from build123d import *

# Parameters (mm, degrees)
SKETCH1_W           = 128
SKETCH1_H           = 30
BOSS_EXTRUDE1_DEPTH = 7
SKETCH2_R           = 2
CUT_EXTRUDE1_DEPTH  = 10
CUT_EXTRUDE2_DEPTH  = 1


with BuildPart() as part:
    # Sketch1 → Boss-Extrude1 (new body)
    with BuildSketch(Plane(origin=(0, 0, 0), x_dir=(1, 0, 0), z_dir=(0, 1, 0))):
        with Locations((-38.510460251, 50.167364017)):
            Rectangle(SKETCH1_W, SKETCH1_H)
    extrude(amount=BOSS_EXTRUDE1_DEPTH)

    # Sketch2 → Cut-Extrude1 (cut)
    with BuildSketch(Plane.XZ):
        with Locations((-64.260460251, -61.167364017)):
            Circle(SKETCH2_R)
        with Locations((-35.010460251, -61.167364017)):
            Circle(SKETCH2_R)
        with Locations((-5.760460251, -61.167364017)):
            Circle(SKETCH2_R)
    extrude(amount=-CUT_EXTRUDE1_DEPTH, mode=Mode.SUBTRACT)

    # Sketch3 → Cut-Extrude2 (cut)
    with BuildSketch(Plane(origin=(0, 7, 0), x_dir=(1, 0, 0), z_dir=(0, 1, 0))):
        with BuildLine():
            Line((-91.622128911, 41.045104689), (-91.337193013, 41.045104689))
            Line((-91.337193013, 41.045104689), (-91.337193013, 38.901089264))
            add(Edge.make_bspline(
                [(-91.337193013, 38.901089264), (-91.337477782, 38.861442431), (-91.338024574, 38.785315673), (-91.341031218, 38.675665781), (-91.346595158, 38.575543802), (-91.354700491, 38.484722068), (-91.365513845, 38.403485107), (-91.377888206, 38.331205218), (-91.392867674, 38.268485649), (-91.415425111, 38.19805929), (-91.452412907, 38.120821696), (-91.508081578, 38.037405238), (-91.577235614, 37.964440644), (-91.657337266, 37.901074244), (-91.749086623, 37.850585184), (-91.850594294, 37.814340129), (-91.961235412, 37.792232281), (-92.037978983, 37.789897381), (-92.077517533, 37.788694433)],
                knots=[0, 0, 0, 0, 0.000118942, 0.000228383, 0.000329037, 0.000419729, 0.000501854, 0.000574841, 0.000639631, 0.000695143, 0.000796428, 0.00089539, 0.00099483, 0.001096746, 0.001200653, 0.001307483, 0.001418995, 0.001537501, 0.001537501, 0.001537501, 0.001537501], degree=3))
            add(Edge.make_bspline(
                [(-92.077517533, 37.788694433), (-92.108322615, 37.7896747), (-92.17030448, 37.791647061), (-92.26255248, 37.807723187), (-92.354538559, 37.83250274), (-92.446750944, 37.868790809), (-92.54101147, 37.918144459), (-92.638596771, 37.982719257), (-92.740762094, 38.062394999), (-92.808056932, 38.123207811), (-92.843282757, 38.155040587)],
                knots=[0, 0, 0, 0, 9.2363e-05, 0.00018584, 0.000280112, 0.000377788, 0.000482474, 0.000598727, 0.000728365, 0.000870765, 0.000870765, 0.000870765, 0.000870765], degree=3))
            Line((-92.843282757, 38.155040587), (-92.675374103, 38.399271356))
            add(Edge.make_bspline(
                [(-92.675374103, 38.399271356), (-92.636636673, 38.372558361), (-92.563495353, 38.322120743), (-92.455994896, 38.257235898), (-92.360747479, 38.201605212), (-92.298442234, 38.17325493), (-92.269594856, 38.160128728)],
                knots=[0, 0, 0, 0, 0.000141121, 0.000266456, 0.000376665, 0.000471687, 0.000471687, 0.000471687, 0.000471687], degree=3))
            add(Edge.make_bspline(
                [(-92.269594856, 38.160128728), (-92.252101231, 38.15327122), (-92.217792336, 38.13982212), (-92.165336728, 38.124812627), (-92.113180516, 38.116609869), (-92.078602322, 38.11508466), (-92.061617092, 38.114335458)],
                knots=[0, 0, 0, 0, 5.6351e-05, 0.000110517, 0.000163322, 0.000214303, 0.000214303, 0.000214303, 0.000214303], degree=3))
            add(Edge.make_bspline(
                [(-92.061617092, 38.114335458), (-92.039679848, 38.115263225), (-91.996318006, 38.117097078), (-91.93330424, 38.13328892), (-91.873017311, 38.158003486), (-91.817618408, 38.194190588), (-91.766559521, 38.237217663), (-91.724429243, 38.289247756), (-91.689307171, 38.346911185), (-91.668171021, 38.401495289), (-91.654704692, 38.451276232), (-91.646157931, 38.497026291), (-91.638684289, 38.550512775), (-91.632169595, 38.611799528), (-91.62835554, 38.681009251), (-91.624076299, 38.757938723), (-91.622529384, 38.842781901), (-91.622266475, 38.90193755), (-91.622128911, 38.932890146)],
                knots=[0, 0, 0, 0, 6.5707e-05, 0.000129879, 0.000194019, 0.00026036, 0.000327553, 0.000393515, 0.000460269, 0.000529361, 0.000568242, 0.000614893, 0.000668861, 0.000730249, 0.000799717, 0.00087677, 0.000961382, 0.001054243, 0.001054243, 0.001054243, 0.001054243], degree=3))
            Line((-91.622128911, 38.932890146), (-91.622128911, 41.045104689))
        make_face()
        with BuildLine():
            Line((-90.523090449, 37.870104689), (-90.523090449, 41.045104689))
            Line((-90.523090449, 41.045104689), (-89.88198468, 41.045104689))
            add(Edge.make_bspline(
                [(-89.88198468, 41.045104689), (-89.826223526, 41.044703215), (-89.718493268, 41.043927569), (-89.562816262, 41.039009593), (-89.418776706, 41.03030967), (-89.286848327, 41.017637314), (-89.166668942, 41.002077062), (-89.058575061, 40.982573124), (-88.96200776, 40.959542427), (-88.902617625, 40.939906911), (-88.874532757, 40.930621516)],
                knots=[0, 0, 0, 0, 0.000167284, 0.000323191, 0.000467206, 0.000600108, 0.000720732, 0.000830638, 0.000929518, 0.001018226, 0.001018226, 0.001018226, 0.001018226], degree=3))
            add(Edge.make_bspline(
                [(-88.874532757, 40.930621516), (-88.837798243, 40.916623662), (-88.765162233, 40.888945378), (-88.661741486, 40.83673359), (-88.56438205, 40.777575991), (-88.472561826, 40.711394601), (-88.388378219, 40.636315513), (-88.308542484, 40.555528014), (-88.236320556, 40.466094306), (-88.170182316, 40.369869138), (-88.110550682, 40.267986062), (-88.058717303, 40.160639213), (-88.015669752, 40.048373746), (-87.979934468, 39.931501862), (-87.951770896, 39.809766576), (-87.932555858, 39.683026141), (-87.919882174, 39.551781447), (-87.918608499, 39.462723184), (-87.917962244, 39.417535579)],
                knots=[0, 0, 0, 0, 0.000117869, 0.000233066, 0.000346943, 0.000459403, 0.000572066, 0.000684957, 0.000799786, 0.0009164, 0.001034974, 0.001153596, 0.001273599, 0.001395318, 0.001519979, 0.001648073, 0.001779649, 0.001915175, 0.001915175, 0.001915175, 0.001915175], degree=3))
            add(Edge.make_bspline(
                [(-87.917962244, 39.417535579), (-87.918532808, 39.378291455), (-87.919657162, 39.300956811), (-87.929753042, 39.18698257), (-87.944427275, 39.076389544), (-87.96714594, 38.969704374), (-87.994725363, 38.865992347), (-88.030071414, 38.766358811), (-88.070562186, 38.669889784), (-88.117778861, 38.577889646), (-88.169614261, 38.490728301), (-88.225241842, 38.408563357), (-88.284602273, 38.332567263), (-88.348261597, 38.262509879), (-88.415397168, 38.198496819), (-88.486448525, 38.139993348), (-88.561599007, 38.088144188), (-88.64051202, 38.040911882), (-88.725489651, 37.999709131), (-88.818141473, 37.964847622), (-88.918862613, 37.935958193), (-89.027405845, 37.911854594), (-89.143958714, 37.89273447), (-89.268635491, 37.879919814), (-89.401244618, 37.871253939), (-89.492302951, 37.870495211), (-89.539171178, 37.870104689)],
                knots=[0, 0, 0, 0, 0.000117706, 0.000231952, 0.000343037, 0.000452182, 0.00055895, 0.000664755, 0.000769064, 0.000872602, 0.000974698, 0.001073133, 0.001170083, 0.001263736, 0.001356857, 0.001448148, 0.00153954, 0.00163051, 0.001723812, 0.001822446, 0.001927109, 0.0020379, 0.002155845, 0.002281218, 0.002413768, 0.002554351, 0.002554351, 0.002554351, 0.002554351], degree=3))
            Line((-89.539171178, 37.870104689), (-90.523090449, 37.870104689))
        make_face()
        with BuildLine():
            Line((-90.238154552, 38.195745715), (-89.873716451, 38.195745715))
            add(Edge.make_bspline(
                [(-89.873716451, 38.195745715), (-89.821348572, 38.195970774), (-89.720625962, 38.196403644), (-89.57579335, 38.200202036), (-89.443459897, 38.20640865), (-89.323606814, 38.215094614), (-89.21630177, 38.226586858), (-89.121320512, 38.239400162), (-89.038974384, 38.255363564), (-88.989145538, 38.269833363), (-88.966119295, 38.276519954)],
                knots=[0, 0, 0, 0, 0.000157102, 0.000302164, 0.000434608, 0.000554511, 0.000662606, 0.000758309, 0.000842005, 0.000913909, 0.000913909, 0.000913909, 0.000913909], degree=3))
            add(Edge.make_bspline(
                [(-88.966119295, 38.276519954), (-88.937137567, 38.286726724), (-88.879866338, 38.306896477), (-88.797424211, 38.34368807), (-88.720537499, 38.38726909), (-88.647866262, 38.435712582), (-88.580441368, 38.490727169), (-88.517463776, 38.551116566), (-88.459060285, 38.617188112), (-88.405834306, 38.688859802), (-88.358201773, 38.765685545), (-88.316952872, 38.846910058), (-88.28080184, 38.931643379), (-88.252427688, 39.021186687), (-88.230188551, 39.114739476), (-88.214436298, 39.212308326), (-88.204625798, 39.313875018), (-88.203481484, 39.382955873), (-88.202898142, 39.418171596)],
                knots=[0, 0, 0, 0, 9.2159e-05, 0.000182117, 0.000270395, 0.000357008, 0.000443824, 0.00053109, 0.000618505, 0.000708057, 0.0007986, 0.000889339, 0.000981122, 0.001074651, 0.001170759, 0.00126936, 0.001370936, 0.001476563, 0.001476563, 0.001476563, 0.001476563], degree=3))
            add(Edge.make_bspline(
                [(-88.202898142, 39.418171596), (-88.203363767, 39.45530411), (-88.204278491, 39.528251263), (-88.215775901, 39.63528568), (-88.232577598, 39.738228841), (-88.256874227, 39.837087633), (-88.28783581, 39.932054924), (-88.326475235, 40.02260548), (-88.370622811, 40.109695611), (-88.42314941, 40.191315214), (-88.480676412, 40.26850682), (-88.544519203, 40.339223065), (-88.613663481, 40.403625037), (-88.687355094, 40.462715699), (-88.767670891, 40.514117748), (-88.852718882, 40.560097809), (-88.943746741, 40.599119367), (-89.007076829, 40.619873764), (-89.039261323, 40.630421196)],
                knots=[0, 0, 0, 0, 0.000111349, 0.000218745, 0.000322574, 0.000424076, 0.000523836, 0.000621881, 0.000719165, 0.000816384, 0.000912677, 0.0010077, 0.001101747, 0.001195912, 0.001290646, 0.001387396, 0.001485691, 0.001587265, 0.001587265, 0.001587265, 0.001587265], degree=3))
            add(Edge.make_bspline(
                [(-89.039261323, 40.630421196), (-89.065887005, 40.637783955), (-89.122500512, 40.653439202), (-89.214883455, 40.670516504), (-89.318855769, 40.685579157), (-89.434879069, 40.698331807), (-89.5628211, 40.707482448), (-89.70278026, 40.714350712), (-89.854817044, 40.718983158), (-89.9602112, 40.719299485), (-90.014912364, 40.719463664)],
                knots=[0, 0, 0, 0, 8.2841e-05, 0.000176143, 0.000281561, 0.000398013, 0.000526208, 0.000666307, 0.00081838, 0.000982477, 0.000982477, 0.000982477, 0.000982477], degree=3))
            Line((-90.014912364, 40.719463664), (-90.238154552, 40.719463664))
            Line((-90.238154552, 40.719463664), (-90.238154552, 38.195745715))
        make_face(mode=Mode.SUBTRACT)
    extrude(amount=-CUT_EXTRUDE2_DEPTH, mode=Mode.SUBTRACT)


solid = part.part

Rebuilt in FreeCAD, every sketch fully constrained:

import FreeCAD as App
import Part
import Sketcher

V = App.Vector

doc = App.newDocument("Part")
params = doc.addObject("Spreadsheet::Sheet", "Params")
for row, (alias, value) in enumerate([
    ("sketch1_width", "128 mm"),
    ("sketch1_height", "30 mm"),
    ("pad1_length", "7 mm"),
    ("sketch2_diameter", "4 mm"),
    ("pocket1_length", "10 mm"),
    ("pocket2_length", "1 mm"),
], start=1):
    params.set(f"A{row}", alias)
    params.set(f"B{row}", "=" + value)
    params.setAlias(f"B{row}", alias)

body = doc.addObject("PartDesign::Body", "Body")

# Sketch on XZ plane
sketch1 = body.newObject("Sketcher::SketchObject", "Sketch")
sketch1.AttachmentSupport = (doc.getObject("XZ_Plane"), [""])
sketch1.MapMode = "FlatFace"
sketch1.addGeometry([
    Part.LineSegment(V(-103, -65, 0), V(-103, -35, 0)),
    Part.LineSegment(V(-103, -35, 0), V(25, -35, 0)),
    Part.LineSegment(V(25, -35, 0), V(25, -65, 0)),
    Part.LineSegment(V(25, -65, 0), V(-103, -65, 0)),
], False)
sketch1.addConstraint([
    Sketcher.Constraint("Coincident", 0, 2, 1, 1),
    Sketcher.Constraint("Coincident", 1, 2, 2, 1),
    Sketcher.Constraint("Coincident", 2, 2, 3, 1),
    Sketcher.Constraint("Coincident", 3, 2, 0, 1),
    Sketcher.Constraint("Vertical", 0),
    Sketcher.Constraint("Horizontal", 1),
    Sketcher.Constraint("Vertical", 2),
    Sketcher.Constraint("Horizontal", 3),
    Sketcher.Constraint("DistanceX", 1, 1, 1, 2, 128.0),
    Sketcher.Constraint("DistanceY", 0, 1, 0, 2, 30.0),
    Sketcher.Constraint("DistanceX", 0, 2, -1, 1, 102.51046),
    Sketcher.Constraint("DistanceY", 0, 2, -1, 1, 35.167364),
])
sketch1.setExpression("Constraints[8]", "Params.sketch1_width")
sketch1.setExpression("Constraints[9]", "Params.sketch1_height")
pad1 = body.newObject("PartDesign::Pad", "Pad")
pad1.Profile = sketch1
pad1.setExpression("Length", "Params.pad1_length")
pad1.Reversed = True

# Sketch on XZ plane
sketch2 = body.newObject("Sketcher::SketchObject", "Sketch001")
sketch2.AttachmentSupport = (doc.getObject("XZ_Plane"), [""])
sketch2.MapMode = "FlatFace"
sketch2.addGeometry([
    Part.Circle(V(-64.3, -61.2, 0), V(0, 0, 1), 2),
    Part.Circle(V(-35, -61.2, 0), V(0, 0, 1), 2),
    Part.Circle(V(-5.8, -61.2, 0), V(0, 0, 1), 2),
], False)
sketch2.addConstraint([
    Sketcher.Constraint("Equal", 0, 1),
    Sketcher.Constraint("Equal", 1, 2),
    Sketcher.Constraint("Horizontal", 0, 3, 1, 3),
    Sketcher.Constraint("Horizontal", 1, 3, 2, 3),
    Sketcher.Constraint("Diameter", 0, 4.0),
    Sketcher.Constraint("DistanceX", 0, 3, 2, 3, 58.5),
    Sketcher.Constraint("DistanceX", 0, 3, 1, 3, 29.25),
    Sketcher.Constraint("DistanceX", 0, 3, -1, 1, 64.26046),
    Sketcher.Constraint("DistanceY", 0, 3, -1, 1, 61.167364),
])
sketch2.setExpression("Constraints[4]", "Params.sketch2_diameter")
pocket1 = body.newObject("PartDesign::Pocket", "Pocket")
pocket1.Profile = sketch2
pocket1.setExpression("Length", "Params.pocket1_length")

# Sketch on XZ plane
sketch3 = body.newObject("Sketcher::SketchObject", "Sketch002")
sketch3.AttachmentSupport = (doc.getObject("XZ_Plane"), [""])
sketch3.MapMode = "FlatFace"
sketch3.AttachmentOffset = App.Placement(V(0, 0, -7), App.Rotation())
sketch3.addGeometry([
    Part.LineSegment(V(-91.337193, -41.045105, 0), V(-91.622129, -41.045105, 0)),  # 0
    Part.LineSegment(V(-91.622129, -41.045105, 0), V(-91.622129, -38.93289, 0)),  # 1
    Part.BSplineCurve([V(-92.061617, -38.114335, 0), V(-92.03968, -38.115263, 0), V(-91.996318, -38.117097, 0), V(-91.933304, -38.133289, 0), V(-91.873017, -38.158003, 0), V(-91.817618, -38.194191, 0), V(-91.76656, -38.237218, 0), V(-91.724429, -38.289248, 0), V(-91.689307, -38.346911, 0), V(-91.668171, -38.401495, 0), V(-91.654705, -38.451276, 0), V(-91.646158, -38.497026, 0), V(-91.638684, -38.550513, 0), V(-91.63217, -38.6118, 0), V(-91.628356, -38.681009, 0), V(-91.624076, -38.757939, 0), V(-91.622529, -38.842782, 0), V(-91.622266, -38.901938, 0), V(-91.622129, -38.93289, 0)], [4, 1, 1, 1, 1, 1, 1, 1, 1, 1, 1, 1, 1, 1, 1, 1, 4], [0, 0.000065707, 0.000129879, 0.000194019, 0.00026036, 0.000327553, 0.000393515, 0.000460269, 0.000529361, 0.000568242, 0.000614893, 0.000668861, 0.000730249, 0.000799717, 0.00087677, 0.000961382, 0.001054243], False, 3, [1, 1, 1, 1, 1, 1, 1, 1, 1, 1, 1, 1, 1, 1, 1, 1, 1, 1, 1], False),  # 2
    Part.BSplineCurve([V(-92.269595, -38.160129, 0), V(-92.252101, -38.153271, 0), V(-92.217792, -38.139822, 0), V(-92.165337, -38.124813, 0), V(-92.113181, -38.11661, 0), V(-92.078602, -38.115085, 0), V(-92.061617, -38.114335, 0)], [4, 1, 1, 1, 4], [0, 0.000056351, 0.000110517, 0.000163322, 0.000214303], False, 3, [1, 1, 1, 1, 1, 1, 1], False),  # 3
    Part.BSplineCurve([V(-92.675374, -38.399271, 0), V(-92.636637, -38.372558, 0), V(-92.563495, -38.322121, 0), V(-92.455995, -38.257236, 0), V(-92.360747, -38.201605, 0), V(-92.298442, -38.173255, 0), V(-92.269595, -38.160129, 0)], [4, 1, 1, 1, 4], [0, 0.000141121, 0.000266456, 0.000376665, 0.000471687], False, 3, [1, 1, 1, 1, 1, 1, 1], False),  # 4
    Part.LineSegment(V(-92.675374, -38.399271, 0), V(-92.843283, -38.155041, 0)),  # 5
    Part.BSplineCurve([V(-92.077518, -37.788694, 0), V(-92.108323, -37.789675, 0), V(-92.170304, -37.791647, 0), V(-92.262552, -37.807723, 0), V(-92.354539, -37.832503, 0), V(-92.446751, -37.868791, 0), V(-92.541011, -37.918144, 0), V(-92.638597, -37.982719, 0), V(-92.740762, -38.062395, 0), V(-92.808057, -38.123208, 0), V(-92.843283, -38.155041, 0)], [4, 1, 1, 1, 1, 1, 1, 1, 4], [0, 0.000092363, 0.00018584, 0.000280112, 0.000377788, 0.000482474, 0.000598727, 0.000728365, 0.000870765], False, 3, [1, 1, 1, 1, 1, 1, 1, 1, 1, 1, 1], False),  # 6
    Part.BSplineCurve([V(-91.337193, -38.901089, 0), V(-91.337478, -38.861442, 0), V(-91.338025, -38.785316, 0), V(-91.341031, -38.675666, 0), V(-91.346595, -38.575544, 0), V(-91.3547, -38.484722, 0), V(-91.365514, -38.403485, 0), V(-91.377888, -38.331205, 0), V(-91.392868, -38.268486, 0), V(-91.415425, -38.198059, 0), V(-91.452413, -38.120822, 0), V(-91.508082, -38.037405, 0), V(-91.577236, -37.964441, 0), V(-91.657337, -37.901074, 0), V(-91.749087, -37.850585, 0), V(-91.850594, -37.81434, 0), V(-91.961235, -37.792232, 0), V(-92.037979, -37.789897, 0), V(-92.077518, -37.788694, 0)], [4, 1, 1, 1, 1, 1, 1, 1, 1, 1, 1, 1, 1, 1, 1, 1, 4], [0, 0.000118942, 0.000228383, 0.000329037, 0.000419729, 0.000501854, 0.000574841, 0.000639631, 0.000695143, 0.000796428, 0.00089539, 0.00099483, 0.001096746, 0.001200653, 0.001307483, 0.001418995, 0.001537501], False, 3, [1, 1, 1, 1, 1, 1, 1, 1, 1, 1, 1, 1, 1, 1, 1, 1, 1, 1, 1], False),  # 7
    Part.LineSegment(V(-91.337193, -38.901089, 0), V(-91.337193, -41.045105, 0)),  # 8
    Part.LineSegment(V(-90.52309, -41.045105, 0), V(-90.52309, -37.870105, 0)),  # 9
    Part.LineSegment(V(-90.52309, -37.870105, 0), V(-89.539171, -37.870105, 0)),  # 10
    Part.BSplineCurve([V(-87.917962, -39.417536, 0), V(-87.918533, -39.378291, 0), V(-87.919657, -39.300957, 0), V(-87.929753, -39.186983, 0), V(-87.944427, -39.07639, 0), V(-87.967146, -38.969704, 0), V(-87.994725, -38.865992, 0), V(-88.030071, -38.766359, 0), V(-88.070562, -38.66989, 0), V(-88.117779, -38.57789, 0), V(-88.169614, -38.490728, 0), V(-88.225242, -38.408563, 0), V(-88.284602, -38.332567, 0), V(-88.348262, -38.26251, 0), V(-88.415397, -38.198497, 0), V(-88.486449, -38.139993, 0), V(-88.561599, -38.088144, 0), V(-88.640512, -38.040912, 0), V(-88.72549, -37.999709, 0), V(-88.818141, -37.964848, 0), V(-88.918863, -37.935958, 0), V(-89.027406, -37.911855, 0), V(-89.143959, -37.892734, 0), V(-89.268635, -37.87992, 0), V(-89.401245, -37.871254, 0), V(-89.492303, -37.870495, 0), V(-89.539171, -37.870105, 0)], [4, 1, 1, 1, 1, 1, 1, 1, 1, 1, 1, 1, 1, 1, 1, 1, 1, 1, 1, 1, 1, 1, 1, 1, 4], [0, 0.000117706, 0.000231952, 0.000343037, 0.000452182, 0.00055895, 0.000664755, 0.000769064, 0.000872602, 0.000974698, 0.001073133, 0.001170083, 0.001263736, 0.001356857, 0.001448148, 0.00153954, 0.00163051, 0.001723812, 0.001822446, 0.001927109, 0.0020379, 0.002155845, 0.002281218, 0.002413768, 0.002554351], False, 3, [1, 1, 1, 1, 1, 1, 1, 1, 1, 1, 1, 1, 1, 1, 1, 1, 1, 1, 1, 1, 1, 1, 1, 1, 1, 1, 1], False),  # 11
    Part.BSplineCurve([V(-88.874533, -40.930622, 0), V(-88.837798, -40.916624, 0), V(-88.765162, -40.888945, 0), V(-88.661741, -40.836734, 0), V(-88.564382, -40.777576, 0), V(-88.472562, -40.711395, 0), V(-88.388378, -40.636316, 0), V(-88.308542, -40.555528, 0), V(-88.236321, -40.466094, 0), V(-88.170182, -40.369869, 0), V(-88.110551, -40.267986, 0), V(-88.058717, -40.160639, 0), V(-88.01567, -40.048374, 0), V(-87.979934, -39.931502, 0), V(-87.951771, -39.809767, 0), V(-87.932556, -39.683026, 0), V(-87.919882, -39.551781, 0), V(-87.918608, -39.462723, 0), V(-87.917962, -39.417536, 0)], [4, 1, 1, 1, 1, 1, 1, 1, 1, 1, 1, 1, 1, 1, 1, 1, 4], [0, 0.000117869, 0.000233066, 0.000346943, 0.000459403, 0.000572066, 0.000684957, 0.000799786, 0.0009164, 0.001034974, 0.001153596, 0.001273599, 0.001395318, 0.001519979, 0.001648073, 0.001779649, 0.001915175], False, 3, [1, 1, 1, 1, 1, 1, 1, 1, 1, 1, 1, 1, 1, 1, 1, 1, 1, 1, 1], False),  # 12
    Part.BSplineCurve([V(-89.881985, -41.045105, 0), V(-89.826224, -41.044703, 0), V(-89.718493, -41.043928, 0), V(-89.562816, -41.03901, 0), V(-89.418777, -41.03031, 0), V(-89.286848, -41.017637, 0), V(-89.166669, -41.002077, 0), V(-89.058575, -40.982573, 0), V(-88.962008, -40.959542, 0), V(-88.902618, -40.939907, 0), V(-88.874533, -40.930622, 0)], [4, 1, 1, 1, 1, 1, 1, 1, 4], [0, 0.000167284, 0.000323191, 0.000467206, 0.000600108, 0.000720732, 0.000830638, 0.000929518, 0.001018226], False, 3, [1, 1, 1, 1, 1, 1, 1, 1, 1, 1, 1], False),  # 13
    Part.LineSegment(V(-89.881985, -41.045105, 0), V(-90.52309, -41.045105, 0)),  # 14
    Part.LineSegment(V(-90.238155, -38.195746, 0), V(-90.238155, -40.719464, 0)),  # 15
    Part.LineSegment(V(-90.238155, -40.719464, 0), V(-90.014912, -40.719464, 0)),  # 16
    Part.BSplineCurve([V(-89.039261, -40.630421, 0), V(-89.065887, -40.637784, 0), V(-89.122501, -40.653439, 0), V(-89.214883, -40.670517, 0), V(-89.318856, -40.685579, 0), V(-89.434879, -40.698332, 0), V(-89.562821, -40.707482, 0), V(-89.70278, -40.714351, 0), V(-89.854817, -40.718983, 0), V(-89.960211, -40.719299, 0), V(-90.014912, -40.719464, 0)], [4, 1, 1, 1, 1, 1, 1, 1, 4], [0, 0.000082841, 0.000176143, 0.000281561, 0.000398013, 0.000526208, 0.000666307, 0.00081838, 0.000982477], False, 3, [1, 1, 1, 1, 1, 1, 1, 1, 1, 1, 1], False),  # 17
    Part.BSplineCurve([V(-88.202898, -39.418172, 0), V(-88.203364, -39.455304, 0), V(-88.204278, -39.528251, 0), V(-88.215776, -39.635286, 0), V(-88.232578, -39.738229, 0), V(-88.256874, -39.837088, 0), V(-88.287836, -39.932055, 0), V(-88.326475, -40.022605, 0), V(-88.370623, -40.109696, 0), V(-88.423149, -40.191315, 0), V(-88.480676, -40.268507, 0), V(-88.544519, -40.339223, 0), V(-88.613663, -40.403625, 0), V(-88.687355, -40.462716, 0), V(-88.767671, -40.514118, 0), V(-88.852719, -40.560098, 0), V(-88.943747, -40.599119, 0), V(-89.007077, -40.619874, 0), V(-89.039261, -40.630421, 0)], [4, 1, 1, 1, 1, 1, 1, 1, 1, 1, 1, 1, 1, 1, 1, 1, 4], [0, 0.000111349, 0.000218745, 0.000322574, 0.000424076, 0.000523836, 0.000621881, 0.000719165, 0.000816384, 0.000912677, 0.0010077, 0.001101747, 0.001195912, 0.001290646, 0.001387396, 0.001485691, 0.001587265], False, 3, [1, 1, 1, 1, 1, 1, 1, 1, 1, 1, 1, 1, 1, 1, 1, 1, 1, 1, 1], False),  # 18
    Part.BSplineCurve([V(-88.966119, -38.27652, 0), V(-88.937138, -38.286727, 0), V(-88.879866, -38.306896, 0), V(-88.797424, -38.343688, 0), V(-88.720537, -38.387269, 0), V(-88.647866, -38.435713, 0), V(-88.580441, -38.490727, 0), V(-88.517464, -38.551117, 0), V(-88.45906, -38.617188, 0), V(-88.405834, -38.68886, 0), V(-88.358202, -38.765686, 0), V(-88.316953, -38.84691, 0), V(-88.280802, -38.931643, 0), V(-88.252428, -39.021187, 0), V(-88.230189, -39.114739, 0), V(-88.214436, -39.212308, 0), V(-88.204626, -39.313875, 0), V(-88.203481, -39.382956, 0), V(-88.202898, -39.418172, 0)], [4, 1, 1, 1, 1, 1, 1, 1, 1, 1, 1, 1, 1, 1, 1, 1, 4], [0, 0.000092159, 0.000182117, 0.000270395, 0.000357008, 0.000443824, 0.00053109, 0.000618505, 0.000708057, 0.0007986, 0.000889339, 0.000981122, 0.001074651, 0.001170759, 0.00126936, 0.001370936, 0.001476563], False, 3, [1, 1, 1, 1, 1, 1, 1, 1, 1, 1, 1, 1, 1, 1, 1, 1, 1, 1, 1], False),  # 19
    Part.BSplineCurve([V(-89.873716, -38.195746, 0), V(-89.821349, -38.195971, 0), V(-89.720626, -38.196404, 0), V(-89.575793, -38.200202, 0), V(-89.44346, -38.206409, 0), V(-89.323607, -38.215095, 0), V(-89.216302, -38.226587, 0), V(-89.121321, -38.2394, 0), V(-89.038974, -38.255364, 0), V(-88.989146, -38.269833, 0), V(-88.966119, -38.27652, 0)], [4, 1, 1, 1, 1, 1, 1, 1, 4], [0, 0.000157102, 0.000302164, 0.000434608, 0.000554511, 0.000662606, 0.000758309, 0.000842005, 0.000913909], False, 3, [1, 1, 1, 1, 1, 1, 1, 1, 1, 1, 1], False),  # 20
    Part.LineSegment(V(-89.873716, -38.195746, 0), V(-90.238155, -38.195746, 0)),  # 21
], False)
sketch3.addConstraint([
    Sketcher.Constraint("Block", 2),
    Sketcher.Constraint("Block", 3),
    Sketcher.Constraint("Block", 4),
    Sketcher.Constraint("Block", 6),
    Sketcher.Constraint("Block", 7),
    Sketcher.Constraint("Block", 11),
    Sketcher.Constraint("Block", 12),
    Sketcher.Constraint("Block", 13),
    Sketcher.Constraint("Block", 17),
    Sketcher.Constraint("Block", 18),
    Sketcher.Constraint("Block", 19),
    Sketcher.Constraint("Block", 20),
    Sketcher.Constraint("Coincident", 0, 2, 1, 1),
    Sketcher.Constraint("Coincident", 1, 2, 2, 2),
    Sketcher.Constraint("Coincident", 4, 1, 5, 1),
    Sketcher.Constraint("Coincident", 5, 2, 6, 2),
    Sketcher.Constraint("Coincident", 7, 1, 8, 1),
    Sketcher.Constraint("Coincident", 8, 2, 0, 1),
    Sketcher.Constraint("Coincident", 9, 2, 10, 1),
    Sketcher.Constraint("Coincident", 10, 2, 11, 2),
    Sketcher.Constraint("Coincident", 13, 1, 14, 1),
    Sketcher.Constraint("Coincident", 14, 2, 9, 1),
    Sketcher.Constraint("Coincident", 15, 2, 16, 1),
    Sketcher.Constraint("Coincident", 16, 2, 17, 2),
    Sketcher.Constraint("Coincident", 20, 1, 21, 1),
    Sketcher.Constraint("Coincident", 21, 2, 15, 1),
    Sketcher.Constraint("Horizontal", 0),
    Sketcher.Constraint("Vertical", 1),
    Sketcher.Constraint("Vertical", 8),
    Sketcher.Constraint("Vertical", 9),
    Sketcher.Constraint("Horizontal", 10),
    Sketcher.Constraint("Horizontal", 14),
    Sketcher.Constraint("Vertical", 15),
    Sketcher.Constraint("Horizontal", 16),
    Sketcher.Constraint("Horizontal", 21),
    Sketcher.Constraint("Horizontal", 8, 2, 14, 2),
    Sketcher.Constraint("DistanceX", 10, 1, 10, 2, 0.983919),
    Sketcher.Constraint("DistanceX", 21, 2, 21, 1, 0.364438),
])
pocket2 = body.newObject("PartDesign::Pocket", "Pocket001")
pocket2.Profile = sketch3
pocket2.setExpression("Length", "Params.pocket2_length")
pocket2.Reversed = True

doc.recompute()
